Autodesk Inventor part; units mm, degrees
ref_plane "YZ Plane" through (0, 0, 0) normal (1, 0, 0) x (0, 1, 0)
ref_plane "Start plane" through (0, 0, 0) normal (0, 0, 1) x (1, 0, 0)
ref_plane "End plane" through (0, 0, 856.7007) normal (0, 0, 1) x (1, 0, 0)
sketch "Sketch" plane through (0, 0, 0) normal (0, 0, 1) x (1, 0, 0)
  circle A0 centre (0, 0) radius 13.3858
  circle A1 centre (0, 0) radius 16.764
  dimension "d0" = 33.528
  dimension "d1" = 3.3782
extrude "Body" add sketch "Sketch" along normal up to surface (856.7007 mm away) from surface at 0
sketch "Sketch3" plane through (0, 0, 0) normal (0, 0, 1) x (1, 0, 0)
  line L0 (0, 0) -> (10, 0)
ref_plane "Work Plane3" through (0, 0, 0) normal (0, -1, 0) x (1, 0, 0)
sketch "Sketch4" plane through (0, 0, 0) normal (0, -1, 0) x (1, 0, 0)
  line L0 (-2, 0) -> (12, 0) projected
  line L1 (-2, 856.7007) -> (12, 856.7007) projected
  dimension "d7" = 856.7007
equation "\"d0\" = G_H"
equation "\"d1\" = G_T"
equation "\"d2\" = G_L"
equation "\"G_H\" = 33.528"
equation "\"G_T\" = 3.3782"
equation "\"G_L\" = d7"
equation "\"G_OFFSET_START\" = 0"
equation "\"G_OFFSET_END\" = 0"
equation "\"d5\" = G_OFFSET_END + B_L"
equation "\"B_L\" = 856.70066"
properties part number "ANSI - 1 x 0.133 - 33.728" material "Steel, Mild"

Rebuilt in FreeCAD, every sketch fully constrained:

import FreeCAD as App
import Part
import Sketcher
Q = App.Units.Quantity

doc = App.newDocument("Part")
body = doc.addObject("PartDesign::Body", "Body")

sketch1 = body.newObject("Sketcher::SketchObject", "Sketch")
sketch1.AttachmentSupport = (doc.getObject("XY_Plane"), [""])
sketch1.MapMode = "FlatFace"
sketch1.addGeometry([
    Part.Circle(App.Vector(0, 0, 0), App.Vector(0, 0, 1), 16.764),
    Part.Circle(App.Vector(0, 0, 0), App.Vector(0, 0, 1), 13.3858),
], False)
sketch1.addConstraint([
    Sketcher.Constraint("Coincident", 0, 3, -1, 1),
    Sketcher.Constraint("Coincident", 1, 3, -1, 1),
    Sketcher.Constraint("Diameter", 0, Q("1.32 in")),
    Sketcher.Constraint("Diameter", 1, Q("1.054 in")),
])
pad1 = body.newObject("PartDesign::Pad", "Pad")
pad1.Profile = sketch1
pad1.Length = 856.7007

doc.recompute()
